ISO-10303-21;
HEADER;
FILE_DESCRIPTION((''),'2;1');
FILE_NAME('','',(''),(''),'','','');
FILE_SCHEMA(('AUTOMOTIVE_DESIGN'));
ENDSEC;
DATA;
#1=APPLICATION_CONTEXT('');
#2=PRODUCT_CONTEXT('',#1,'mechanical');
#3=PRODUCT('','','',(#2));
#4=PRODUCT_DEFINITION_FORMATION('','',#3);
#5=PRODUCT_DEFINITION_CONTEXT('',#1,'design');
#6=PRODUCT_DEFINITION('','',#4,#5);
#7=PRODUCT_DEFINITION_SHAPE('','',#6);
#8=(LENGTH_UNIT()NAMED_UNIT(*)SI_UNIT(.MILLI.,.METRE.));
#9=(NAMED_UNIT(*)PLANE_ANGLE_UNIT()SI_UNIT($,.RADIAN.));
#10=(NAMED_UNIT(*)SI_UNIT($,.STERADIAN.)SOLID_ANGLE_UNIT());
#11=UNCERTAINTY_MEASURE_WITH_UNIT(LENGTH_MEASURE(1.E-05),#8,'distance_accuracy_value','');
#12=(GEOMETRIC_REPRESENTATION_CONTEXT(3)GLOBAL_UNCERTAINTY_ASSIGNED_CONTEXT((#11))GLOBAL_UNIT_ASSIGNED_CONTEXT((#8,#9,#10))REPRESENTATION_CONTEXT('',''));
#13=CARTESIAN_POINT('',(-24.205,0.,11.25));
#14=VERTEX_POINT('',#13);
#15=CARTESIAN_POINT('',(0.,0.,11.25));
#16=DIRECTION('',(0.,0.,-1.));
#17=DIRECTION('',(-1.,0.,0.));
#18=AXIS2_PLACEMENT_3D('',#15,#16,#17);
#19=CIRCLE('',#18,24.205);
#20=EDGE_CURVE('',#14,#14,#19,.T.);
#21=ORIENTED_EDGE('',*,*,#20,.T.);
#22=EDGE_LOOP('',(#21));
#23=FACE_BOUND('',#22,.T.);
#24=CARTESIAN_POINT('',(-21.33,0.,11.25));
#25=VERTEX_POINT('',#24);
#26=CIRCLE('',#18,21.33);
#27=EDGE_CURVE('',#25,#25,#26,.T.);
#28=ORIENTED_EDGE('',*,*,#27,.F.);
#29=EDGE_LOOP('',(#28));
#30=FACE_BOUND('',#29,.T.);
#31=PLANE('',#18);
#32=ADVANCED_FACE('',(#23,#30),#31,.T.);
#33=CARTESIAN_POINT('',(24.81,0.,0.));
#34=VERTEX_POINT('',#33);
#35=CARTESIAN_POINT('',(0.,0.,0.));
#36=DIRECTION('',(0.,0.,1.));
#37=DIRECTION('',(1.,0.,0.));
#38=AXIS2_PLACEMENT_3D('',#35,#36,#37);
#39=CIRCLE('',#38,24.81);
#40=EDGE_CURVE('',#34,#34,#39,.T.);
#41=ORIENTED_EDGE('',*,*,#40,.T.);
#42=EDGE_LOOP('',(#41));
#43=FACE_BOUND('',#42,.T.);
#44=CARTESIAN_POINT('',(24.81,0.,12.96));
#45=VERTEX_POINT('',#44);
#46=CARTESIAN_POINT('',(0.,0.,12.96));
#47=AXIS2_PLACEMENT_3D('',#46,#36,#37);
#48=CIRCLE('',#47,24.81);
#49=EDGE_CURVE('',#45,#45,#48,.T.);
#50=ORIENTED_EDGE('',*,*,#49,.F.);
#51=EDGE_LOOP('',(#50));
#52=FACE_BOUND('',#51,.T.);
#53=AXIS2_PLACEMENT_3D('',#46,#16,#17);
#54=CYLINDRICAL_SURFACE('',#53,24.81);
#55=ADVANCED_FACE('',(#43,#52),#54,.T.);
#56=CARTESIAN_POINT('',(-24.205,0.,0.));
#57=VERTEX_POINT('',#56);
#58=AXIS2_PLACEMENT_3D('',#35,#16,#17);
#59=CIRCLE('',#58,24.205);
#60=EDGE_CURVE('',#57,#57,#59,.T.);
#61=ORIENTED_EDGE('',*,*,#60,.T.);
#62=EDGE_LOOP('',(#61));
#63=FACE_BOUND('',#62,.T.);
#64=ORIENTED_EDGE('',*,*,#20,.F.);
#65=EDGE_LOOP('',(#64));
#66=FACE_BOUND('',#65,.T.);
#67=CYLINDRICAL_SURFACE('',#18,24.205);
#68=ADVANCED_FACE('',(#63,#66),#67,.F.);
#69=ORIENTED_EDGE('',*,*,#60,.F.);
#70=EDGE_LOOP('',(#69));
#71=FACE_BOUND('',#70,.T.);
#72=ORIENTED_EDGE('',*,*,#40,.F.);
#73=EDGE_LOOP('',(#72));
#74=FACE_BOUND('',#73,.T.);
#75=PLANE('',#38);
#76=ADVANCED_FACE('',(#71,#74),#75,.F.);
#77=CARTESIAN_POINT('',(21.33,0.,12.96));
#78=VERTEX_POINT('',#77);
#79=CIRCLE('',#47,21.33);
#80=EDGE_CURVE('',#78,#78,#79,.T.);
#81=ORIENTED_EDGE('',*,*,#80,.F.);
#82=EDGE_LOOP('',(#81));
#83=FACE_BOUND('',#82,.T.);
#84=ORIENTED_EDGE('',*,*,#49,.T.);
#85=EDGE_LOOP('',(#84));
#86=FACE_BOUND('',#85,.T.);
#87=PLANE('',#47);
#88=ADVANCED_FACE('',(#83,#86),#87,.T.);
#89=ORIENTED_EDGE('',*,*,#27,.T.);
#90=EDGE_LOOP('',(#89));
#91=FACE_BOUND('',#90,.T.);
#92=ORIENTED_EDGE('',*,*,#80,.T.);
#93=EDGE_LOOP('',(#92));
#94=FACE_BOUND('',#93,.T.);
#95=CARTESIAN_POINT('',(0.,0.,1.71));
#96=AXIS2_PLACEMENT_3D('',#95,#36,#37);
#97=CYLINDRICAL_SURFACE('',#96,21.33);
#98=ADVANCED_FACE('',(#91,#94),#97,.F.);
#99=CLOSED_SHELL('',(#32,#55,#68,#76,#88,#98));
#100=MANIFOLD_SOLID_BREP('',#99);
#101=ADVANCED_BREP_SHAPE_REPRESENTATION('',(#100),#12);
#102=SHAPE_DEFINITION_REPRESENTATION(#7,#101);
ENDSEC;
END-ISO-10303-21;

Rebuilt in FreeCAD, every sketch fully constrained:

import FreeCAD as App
import Part
import Sketcher

V = App.Vector
Q = App.Units.Quantity

doc = App.newDocument("Part")
body = doc.addObject("PartDesign::Body", "Body")

# Sketch on XY plane
sketch1 = body.newObject("Sketcher::SketchObject", "Sketch")
sketch1.AttachmentSupport = (doc.getObject("XY_Plane"), [""])
sketch1.MapMode = "FlatFace"
sketch1.addGeometry(Part.Circle(V(0, 0, 0), V(0, 0, 1), 25), False)
sketch1.addConstraint([
    Sketcher.Constraint("Coincident", 0, 3, -1, 1),
    Sketcher.Constraint("Diameter", 0, Q("49.62 mm")),
])
pad1 = body.newObject("PartDesign::Pad", "Pad")
pad1.Profile = sketch1
pad1.Length = 12.96

# Sketch on XY plane
sketch2 = body.newObject("Sketcher::SketchObject", "Sketch001")
sketch2.AttachmentSupport = (doc.getObject("XY_Plane"), [""])
sketch2.MapMode = "FlatFace"
sketch2.addGeometry(Part.Circle(V(0, 0, 0), V(0, 0, 1), 24), False)
sketch2.addConstraint([
    Sketcher.Constraint("Coincident", 0, 3, -1, 1),
    Sketcher.Constraint("Diameter", 0, Q("48.41 mm")),
])
pocket1 = body.newObject("PartDesign::Pocket", "Pocket")
pocket1.Profile = sketch2
pocket1.Length = 11.25
pocket1.Reversed = True

# Sketch on XY plane
sketch3 = body.newObject("Sketcher::SketchObject", "Sketch002")
sketch3.AttachmentSupport = (doc.getObject("XY_Plane"), [""])
sketch3.MapMode = "FlatFace"
sketch3.AttachmentOffset = App.Placement(V(0, 0, 12.96), App.Rotation())
sketch3.addGeometry(Part.Circle(V(0, 0, 0), V(0, 0, 1), 21), False)
sketch3.addConstraint([
    Sketcher.Constraint("Coincident", 0, 3, -1, 1),
    Sketcher.Constraint("Diameter", 0, Q("42.66 mm")),
])
pocket2 = body.newObject("PartDesign::Pocket", "Pocket001")
pocket2.Profile = sketch3
pocket2.Length = 11.25

doc.recompute()
